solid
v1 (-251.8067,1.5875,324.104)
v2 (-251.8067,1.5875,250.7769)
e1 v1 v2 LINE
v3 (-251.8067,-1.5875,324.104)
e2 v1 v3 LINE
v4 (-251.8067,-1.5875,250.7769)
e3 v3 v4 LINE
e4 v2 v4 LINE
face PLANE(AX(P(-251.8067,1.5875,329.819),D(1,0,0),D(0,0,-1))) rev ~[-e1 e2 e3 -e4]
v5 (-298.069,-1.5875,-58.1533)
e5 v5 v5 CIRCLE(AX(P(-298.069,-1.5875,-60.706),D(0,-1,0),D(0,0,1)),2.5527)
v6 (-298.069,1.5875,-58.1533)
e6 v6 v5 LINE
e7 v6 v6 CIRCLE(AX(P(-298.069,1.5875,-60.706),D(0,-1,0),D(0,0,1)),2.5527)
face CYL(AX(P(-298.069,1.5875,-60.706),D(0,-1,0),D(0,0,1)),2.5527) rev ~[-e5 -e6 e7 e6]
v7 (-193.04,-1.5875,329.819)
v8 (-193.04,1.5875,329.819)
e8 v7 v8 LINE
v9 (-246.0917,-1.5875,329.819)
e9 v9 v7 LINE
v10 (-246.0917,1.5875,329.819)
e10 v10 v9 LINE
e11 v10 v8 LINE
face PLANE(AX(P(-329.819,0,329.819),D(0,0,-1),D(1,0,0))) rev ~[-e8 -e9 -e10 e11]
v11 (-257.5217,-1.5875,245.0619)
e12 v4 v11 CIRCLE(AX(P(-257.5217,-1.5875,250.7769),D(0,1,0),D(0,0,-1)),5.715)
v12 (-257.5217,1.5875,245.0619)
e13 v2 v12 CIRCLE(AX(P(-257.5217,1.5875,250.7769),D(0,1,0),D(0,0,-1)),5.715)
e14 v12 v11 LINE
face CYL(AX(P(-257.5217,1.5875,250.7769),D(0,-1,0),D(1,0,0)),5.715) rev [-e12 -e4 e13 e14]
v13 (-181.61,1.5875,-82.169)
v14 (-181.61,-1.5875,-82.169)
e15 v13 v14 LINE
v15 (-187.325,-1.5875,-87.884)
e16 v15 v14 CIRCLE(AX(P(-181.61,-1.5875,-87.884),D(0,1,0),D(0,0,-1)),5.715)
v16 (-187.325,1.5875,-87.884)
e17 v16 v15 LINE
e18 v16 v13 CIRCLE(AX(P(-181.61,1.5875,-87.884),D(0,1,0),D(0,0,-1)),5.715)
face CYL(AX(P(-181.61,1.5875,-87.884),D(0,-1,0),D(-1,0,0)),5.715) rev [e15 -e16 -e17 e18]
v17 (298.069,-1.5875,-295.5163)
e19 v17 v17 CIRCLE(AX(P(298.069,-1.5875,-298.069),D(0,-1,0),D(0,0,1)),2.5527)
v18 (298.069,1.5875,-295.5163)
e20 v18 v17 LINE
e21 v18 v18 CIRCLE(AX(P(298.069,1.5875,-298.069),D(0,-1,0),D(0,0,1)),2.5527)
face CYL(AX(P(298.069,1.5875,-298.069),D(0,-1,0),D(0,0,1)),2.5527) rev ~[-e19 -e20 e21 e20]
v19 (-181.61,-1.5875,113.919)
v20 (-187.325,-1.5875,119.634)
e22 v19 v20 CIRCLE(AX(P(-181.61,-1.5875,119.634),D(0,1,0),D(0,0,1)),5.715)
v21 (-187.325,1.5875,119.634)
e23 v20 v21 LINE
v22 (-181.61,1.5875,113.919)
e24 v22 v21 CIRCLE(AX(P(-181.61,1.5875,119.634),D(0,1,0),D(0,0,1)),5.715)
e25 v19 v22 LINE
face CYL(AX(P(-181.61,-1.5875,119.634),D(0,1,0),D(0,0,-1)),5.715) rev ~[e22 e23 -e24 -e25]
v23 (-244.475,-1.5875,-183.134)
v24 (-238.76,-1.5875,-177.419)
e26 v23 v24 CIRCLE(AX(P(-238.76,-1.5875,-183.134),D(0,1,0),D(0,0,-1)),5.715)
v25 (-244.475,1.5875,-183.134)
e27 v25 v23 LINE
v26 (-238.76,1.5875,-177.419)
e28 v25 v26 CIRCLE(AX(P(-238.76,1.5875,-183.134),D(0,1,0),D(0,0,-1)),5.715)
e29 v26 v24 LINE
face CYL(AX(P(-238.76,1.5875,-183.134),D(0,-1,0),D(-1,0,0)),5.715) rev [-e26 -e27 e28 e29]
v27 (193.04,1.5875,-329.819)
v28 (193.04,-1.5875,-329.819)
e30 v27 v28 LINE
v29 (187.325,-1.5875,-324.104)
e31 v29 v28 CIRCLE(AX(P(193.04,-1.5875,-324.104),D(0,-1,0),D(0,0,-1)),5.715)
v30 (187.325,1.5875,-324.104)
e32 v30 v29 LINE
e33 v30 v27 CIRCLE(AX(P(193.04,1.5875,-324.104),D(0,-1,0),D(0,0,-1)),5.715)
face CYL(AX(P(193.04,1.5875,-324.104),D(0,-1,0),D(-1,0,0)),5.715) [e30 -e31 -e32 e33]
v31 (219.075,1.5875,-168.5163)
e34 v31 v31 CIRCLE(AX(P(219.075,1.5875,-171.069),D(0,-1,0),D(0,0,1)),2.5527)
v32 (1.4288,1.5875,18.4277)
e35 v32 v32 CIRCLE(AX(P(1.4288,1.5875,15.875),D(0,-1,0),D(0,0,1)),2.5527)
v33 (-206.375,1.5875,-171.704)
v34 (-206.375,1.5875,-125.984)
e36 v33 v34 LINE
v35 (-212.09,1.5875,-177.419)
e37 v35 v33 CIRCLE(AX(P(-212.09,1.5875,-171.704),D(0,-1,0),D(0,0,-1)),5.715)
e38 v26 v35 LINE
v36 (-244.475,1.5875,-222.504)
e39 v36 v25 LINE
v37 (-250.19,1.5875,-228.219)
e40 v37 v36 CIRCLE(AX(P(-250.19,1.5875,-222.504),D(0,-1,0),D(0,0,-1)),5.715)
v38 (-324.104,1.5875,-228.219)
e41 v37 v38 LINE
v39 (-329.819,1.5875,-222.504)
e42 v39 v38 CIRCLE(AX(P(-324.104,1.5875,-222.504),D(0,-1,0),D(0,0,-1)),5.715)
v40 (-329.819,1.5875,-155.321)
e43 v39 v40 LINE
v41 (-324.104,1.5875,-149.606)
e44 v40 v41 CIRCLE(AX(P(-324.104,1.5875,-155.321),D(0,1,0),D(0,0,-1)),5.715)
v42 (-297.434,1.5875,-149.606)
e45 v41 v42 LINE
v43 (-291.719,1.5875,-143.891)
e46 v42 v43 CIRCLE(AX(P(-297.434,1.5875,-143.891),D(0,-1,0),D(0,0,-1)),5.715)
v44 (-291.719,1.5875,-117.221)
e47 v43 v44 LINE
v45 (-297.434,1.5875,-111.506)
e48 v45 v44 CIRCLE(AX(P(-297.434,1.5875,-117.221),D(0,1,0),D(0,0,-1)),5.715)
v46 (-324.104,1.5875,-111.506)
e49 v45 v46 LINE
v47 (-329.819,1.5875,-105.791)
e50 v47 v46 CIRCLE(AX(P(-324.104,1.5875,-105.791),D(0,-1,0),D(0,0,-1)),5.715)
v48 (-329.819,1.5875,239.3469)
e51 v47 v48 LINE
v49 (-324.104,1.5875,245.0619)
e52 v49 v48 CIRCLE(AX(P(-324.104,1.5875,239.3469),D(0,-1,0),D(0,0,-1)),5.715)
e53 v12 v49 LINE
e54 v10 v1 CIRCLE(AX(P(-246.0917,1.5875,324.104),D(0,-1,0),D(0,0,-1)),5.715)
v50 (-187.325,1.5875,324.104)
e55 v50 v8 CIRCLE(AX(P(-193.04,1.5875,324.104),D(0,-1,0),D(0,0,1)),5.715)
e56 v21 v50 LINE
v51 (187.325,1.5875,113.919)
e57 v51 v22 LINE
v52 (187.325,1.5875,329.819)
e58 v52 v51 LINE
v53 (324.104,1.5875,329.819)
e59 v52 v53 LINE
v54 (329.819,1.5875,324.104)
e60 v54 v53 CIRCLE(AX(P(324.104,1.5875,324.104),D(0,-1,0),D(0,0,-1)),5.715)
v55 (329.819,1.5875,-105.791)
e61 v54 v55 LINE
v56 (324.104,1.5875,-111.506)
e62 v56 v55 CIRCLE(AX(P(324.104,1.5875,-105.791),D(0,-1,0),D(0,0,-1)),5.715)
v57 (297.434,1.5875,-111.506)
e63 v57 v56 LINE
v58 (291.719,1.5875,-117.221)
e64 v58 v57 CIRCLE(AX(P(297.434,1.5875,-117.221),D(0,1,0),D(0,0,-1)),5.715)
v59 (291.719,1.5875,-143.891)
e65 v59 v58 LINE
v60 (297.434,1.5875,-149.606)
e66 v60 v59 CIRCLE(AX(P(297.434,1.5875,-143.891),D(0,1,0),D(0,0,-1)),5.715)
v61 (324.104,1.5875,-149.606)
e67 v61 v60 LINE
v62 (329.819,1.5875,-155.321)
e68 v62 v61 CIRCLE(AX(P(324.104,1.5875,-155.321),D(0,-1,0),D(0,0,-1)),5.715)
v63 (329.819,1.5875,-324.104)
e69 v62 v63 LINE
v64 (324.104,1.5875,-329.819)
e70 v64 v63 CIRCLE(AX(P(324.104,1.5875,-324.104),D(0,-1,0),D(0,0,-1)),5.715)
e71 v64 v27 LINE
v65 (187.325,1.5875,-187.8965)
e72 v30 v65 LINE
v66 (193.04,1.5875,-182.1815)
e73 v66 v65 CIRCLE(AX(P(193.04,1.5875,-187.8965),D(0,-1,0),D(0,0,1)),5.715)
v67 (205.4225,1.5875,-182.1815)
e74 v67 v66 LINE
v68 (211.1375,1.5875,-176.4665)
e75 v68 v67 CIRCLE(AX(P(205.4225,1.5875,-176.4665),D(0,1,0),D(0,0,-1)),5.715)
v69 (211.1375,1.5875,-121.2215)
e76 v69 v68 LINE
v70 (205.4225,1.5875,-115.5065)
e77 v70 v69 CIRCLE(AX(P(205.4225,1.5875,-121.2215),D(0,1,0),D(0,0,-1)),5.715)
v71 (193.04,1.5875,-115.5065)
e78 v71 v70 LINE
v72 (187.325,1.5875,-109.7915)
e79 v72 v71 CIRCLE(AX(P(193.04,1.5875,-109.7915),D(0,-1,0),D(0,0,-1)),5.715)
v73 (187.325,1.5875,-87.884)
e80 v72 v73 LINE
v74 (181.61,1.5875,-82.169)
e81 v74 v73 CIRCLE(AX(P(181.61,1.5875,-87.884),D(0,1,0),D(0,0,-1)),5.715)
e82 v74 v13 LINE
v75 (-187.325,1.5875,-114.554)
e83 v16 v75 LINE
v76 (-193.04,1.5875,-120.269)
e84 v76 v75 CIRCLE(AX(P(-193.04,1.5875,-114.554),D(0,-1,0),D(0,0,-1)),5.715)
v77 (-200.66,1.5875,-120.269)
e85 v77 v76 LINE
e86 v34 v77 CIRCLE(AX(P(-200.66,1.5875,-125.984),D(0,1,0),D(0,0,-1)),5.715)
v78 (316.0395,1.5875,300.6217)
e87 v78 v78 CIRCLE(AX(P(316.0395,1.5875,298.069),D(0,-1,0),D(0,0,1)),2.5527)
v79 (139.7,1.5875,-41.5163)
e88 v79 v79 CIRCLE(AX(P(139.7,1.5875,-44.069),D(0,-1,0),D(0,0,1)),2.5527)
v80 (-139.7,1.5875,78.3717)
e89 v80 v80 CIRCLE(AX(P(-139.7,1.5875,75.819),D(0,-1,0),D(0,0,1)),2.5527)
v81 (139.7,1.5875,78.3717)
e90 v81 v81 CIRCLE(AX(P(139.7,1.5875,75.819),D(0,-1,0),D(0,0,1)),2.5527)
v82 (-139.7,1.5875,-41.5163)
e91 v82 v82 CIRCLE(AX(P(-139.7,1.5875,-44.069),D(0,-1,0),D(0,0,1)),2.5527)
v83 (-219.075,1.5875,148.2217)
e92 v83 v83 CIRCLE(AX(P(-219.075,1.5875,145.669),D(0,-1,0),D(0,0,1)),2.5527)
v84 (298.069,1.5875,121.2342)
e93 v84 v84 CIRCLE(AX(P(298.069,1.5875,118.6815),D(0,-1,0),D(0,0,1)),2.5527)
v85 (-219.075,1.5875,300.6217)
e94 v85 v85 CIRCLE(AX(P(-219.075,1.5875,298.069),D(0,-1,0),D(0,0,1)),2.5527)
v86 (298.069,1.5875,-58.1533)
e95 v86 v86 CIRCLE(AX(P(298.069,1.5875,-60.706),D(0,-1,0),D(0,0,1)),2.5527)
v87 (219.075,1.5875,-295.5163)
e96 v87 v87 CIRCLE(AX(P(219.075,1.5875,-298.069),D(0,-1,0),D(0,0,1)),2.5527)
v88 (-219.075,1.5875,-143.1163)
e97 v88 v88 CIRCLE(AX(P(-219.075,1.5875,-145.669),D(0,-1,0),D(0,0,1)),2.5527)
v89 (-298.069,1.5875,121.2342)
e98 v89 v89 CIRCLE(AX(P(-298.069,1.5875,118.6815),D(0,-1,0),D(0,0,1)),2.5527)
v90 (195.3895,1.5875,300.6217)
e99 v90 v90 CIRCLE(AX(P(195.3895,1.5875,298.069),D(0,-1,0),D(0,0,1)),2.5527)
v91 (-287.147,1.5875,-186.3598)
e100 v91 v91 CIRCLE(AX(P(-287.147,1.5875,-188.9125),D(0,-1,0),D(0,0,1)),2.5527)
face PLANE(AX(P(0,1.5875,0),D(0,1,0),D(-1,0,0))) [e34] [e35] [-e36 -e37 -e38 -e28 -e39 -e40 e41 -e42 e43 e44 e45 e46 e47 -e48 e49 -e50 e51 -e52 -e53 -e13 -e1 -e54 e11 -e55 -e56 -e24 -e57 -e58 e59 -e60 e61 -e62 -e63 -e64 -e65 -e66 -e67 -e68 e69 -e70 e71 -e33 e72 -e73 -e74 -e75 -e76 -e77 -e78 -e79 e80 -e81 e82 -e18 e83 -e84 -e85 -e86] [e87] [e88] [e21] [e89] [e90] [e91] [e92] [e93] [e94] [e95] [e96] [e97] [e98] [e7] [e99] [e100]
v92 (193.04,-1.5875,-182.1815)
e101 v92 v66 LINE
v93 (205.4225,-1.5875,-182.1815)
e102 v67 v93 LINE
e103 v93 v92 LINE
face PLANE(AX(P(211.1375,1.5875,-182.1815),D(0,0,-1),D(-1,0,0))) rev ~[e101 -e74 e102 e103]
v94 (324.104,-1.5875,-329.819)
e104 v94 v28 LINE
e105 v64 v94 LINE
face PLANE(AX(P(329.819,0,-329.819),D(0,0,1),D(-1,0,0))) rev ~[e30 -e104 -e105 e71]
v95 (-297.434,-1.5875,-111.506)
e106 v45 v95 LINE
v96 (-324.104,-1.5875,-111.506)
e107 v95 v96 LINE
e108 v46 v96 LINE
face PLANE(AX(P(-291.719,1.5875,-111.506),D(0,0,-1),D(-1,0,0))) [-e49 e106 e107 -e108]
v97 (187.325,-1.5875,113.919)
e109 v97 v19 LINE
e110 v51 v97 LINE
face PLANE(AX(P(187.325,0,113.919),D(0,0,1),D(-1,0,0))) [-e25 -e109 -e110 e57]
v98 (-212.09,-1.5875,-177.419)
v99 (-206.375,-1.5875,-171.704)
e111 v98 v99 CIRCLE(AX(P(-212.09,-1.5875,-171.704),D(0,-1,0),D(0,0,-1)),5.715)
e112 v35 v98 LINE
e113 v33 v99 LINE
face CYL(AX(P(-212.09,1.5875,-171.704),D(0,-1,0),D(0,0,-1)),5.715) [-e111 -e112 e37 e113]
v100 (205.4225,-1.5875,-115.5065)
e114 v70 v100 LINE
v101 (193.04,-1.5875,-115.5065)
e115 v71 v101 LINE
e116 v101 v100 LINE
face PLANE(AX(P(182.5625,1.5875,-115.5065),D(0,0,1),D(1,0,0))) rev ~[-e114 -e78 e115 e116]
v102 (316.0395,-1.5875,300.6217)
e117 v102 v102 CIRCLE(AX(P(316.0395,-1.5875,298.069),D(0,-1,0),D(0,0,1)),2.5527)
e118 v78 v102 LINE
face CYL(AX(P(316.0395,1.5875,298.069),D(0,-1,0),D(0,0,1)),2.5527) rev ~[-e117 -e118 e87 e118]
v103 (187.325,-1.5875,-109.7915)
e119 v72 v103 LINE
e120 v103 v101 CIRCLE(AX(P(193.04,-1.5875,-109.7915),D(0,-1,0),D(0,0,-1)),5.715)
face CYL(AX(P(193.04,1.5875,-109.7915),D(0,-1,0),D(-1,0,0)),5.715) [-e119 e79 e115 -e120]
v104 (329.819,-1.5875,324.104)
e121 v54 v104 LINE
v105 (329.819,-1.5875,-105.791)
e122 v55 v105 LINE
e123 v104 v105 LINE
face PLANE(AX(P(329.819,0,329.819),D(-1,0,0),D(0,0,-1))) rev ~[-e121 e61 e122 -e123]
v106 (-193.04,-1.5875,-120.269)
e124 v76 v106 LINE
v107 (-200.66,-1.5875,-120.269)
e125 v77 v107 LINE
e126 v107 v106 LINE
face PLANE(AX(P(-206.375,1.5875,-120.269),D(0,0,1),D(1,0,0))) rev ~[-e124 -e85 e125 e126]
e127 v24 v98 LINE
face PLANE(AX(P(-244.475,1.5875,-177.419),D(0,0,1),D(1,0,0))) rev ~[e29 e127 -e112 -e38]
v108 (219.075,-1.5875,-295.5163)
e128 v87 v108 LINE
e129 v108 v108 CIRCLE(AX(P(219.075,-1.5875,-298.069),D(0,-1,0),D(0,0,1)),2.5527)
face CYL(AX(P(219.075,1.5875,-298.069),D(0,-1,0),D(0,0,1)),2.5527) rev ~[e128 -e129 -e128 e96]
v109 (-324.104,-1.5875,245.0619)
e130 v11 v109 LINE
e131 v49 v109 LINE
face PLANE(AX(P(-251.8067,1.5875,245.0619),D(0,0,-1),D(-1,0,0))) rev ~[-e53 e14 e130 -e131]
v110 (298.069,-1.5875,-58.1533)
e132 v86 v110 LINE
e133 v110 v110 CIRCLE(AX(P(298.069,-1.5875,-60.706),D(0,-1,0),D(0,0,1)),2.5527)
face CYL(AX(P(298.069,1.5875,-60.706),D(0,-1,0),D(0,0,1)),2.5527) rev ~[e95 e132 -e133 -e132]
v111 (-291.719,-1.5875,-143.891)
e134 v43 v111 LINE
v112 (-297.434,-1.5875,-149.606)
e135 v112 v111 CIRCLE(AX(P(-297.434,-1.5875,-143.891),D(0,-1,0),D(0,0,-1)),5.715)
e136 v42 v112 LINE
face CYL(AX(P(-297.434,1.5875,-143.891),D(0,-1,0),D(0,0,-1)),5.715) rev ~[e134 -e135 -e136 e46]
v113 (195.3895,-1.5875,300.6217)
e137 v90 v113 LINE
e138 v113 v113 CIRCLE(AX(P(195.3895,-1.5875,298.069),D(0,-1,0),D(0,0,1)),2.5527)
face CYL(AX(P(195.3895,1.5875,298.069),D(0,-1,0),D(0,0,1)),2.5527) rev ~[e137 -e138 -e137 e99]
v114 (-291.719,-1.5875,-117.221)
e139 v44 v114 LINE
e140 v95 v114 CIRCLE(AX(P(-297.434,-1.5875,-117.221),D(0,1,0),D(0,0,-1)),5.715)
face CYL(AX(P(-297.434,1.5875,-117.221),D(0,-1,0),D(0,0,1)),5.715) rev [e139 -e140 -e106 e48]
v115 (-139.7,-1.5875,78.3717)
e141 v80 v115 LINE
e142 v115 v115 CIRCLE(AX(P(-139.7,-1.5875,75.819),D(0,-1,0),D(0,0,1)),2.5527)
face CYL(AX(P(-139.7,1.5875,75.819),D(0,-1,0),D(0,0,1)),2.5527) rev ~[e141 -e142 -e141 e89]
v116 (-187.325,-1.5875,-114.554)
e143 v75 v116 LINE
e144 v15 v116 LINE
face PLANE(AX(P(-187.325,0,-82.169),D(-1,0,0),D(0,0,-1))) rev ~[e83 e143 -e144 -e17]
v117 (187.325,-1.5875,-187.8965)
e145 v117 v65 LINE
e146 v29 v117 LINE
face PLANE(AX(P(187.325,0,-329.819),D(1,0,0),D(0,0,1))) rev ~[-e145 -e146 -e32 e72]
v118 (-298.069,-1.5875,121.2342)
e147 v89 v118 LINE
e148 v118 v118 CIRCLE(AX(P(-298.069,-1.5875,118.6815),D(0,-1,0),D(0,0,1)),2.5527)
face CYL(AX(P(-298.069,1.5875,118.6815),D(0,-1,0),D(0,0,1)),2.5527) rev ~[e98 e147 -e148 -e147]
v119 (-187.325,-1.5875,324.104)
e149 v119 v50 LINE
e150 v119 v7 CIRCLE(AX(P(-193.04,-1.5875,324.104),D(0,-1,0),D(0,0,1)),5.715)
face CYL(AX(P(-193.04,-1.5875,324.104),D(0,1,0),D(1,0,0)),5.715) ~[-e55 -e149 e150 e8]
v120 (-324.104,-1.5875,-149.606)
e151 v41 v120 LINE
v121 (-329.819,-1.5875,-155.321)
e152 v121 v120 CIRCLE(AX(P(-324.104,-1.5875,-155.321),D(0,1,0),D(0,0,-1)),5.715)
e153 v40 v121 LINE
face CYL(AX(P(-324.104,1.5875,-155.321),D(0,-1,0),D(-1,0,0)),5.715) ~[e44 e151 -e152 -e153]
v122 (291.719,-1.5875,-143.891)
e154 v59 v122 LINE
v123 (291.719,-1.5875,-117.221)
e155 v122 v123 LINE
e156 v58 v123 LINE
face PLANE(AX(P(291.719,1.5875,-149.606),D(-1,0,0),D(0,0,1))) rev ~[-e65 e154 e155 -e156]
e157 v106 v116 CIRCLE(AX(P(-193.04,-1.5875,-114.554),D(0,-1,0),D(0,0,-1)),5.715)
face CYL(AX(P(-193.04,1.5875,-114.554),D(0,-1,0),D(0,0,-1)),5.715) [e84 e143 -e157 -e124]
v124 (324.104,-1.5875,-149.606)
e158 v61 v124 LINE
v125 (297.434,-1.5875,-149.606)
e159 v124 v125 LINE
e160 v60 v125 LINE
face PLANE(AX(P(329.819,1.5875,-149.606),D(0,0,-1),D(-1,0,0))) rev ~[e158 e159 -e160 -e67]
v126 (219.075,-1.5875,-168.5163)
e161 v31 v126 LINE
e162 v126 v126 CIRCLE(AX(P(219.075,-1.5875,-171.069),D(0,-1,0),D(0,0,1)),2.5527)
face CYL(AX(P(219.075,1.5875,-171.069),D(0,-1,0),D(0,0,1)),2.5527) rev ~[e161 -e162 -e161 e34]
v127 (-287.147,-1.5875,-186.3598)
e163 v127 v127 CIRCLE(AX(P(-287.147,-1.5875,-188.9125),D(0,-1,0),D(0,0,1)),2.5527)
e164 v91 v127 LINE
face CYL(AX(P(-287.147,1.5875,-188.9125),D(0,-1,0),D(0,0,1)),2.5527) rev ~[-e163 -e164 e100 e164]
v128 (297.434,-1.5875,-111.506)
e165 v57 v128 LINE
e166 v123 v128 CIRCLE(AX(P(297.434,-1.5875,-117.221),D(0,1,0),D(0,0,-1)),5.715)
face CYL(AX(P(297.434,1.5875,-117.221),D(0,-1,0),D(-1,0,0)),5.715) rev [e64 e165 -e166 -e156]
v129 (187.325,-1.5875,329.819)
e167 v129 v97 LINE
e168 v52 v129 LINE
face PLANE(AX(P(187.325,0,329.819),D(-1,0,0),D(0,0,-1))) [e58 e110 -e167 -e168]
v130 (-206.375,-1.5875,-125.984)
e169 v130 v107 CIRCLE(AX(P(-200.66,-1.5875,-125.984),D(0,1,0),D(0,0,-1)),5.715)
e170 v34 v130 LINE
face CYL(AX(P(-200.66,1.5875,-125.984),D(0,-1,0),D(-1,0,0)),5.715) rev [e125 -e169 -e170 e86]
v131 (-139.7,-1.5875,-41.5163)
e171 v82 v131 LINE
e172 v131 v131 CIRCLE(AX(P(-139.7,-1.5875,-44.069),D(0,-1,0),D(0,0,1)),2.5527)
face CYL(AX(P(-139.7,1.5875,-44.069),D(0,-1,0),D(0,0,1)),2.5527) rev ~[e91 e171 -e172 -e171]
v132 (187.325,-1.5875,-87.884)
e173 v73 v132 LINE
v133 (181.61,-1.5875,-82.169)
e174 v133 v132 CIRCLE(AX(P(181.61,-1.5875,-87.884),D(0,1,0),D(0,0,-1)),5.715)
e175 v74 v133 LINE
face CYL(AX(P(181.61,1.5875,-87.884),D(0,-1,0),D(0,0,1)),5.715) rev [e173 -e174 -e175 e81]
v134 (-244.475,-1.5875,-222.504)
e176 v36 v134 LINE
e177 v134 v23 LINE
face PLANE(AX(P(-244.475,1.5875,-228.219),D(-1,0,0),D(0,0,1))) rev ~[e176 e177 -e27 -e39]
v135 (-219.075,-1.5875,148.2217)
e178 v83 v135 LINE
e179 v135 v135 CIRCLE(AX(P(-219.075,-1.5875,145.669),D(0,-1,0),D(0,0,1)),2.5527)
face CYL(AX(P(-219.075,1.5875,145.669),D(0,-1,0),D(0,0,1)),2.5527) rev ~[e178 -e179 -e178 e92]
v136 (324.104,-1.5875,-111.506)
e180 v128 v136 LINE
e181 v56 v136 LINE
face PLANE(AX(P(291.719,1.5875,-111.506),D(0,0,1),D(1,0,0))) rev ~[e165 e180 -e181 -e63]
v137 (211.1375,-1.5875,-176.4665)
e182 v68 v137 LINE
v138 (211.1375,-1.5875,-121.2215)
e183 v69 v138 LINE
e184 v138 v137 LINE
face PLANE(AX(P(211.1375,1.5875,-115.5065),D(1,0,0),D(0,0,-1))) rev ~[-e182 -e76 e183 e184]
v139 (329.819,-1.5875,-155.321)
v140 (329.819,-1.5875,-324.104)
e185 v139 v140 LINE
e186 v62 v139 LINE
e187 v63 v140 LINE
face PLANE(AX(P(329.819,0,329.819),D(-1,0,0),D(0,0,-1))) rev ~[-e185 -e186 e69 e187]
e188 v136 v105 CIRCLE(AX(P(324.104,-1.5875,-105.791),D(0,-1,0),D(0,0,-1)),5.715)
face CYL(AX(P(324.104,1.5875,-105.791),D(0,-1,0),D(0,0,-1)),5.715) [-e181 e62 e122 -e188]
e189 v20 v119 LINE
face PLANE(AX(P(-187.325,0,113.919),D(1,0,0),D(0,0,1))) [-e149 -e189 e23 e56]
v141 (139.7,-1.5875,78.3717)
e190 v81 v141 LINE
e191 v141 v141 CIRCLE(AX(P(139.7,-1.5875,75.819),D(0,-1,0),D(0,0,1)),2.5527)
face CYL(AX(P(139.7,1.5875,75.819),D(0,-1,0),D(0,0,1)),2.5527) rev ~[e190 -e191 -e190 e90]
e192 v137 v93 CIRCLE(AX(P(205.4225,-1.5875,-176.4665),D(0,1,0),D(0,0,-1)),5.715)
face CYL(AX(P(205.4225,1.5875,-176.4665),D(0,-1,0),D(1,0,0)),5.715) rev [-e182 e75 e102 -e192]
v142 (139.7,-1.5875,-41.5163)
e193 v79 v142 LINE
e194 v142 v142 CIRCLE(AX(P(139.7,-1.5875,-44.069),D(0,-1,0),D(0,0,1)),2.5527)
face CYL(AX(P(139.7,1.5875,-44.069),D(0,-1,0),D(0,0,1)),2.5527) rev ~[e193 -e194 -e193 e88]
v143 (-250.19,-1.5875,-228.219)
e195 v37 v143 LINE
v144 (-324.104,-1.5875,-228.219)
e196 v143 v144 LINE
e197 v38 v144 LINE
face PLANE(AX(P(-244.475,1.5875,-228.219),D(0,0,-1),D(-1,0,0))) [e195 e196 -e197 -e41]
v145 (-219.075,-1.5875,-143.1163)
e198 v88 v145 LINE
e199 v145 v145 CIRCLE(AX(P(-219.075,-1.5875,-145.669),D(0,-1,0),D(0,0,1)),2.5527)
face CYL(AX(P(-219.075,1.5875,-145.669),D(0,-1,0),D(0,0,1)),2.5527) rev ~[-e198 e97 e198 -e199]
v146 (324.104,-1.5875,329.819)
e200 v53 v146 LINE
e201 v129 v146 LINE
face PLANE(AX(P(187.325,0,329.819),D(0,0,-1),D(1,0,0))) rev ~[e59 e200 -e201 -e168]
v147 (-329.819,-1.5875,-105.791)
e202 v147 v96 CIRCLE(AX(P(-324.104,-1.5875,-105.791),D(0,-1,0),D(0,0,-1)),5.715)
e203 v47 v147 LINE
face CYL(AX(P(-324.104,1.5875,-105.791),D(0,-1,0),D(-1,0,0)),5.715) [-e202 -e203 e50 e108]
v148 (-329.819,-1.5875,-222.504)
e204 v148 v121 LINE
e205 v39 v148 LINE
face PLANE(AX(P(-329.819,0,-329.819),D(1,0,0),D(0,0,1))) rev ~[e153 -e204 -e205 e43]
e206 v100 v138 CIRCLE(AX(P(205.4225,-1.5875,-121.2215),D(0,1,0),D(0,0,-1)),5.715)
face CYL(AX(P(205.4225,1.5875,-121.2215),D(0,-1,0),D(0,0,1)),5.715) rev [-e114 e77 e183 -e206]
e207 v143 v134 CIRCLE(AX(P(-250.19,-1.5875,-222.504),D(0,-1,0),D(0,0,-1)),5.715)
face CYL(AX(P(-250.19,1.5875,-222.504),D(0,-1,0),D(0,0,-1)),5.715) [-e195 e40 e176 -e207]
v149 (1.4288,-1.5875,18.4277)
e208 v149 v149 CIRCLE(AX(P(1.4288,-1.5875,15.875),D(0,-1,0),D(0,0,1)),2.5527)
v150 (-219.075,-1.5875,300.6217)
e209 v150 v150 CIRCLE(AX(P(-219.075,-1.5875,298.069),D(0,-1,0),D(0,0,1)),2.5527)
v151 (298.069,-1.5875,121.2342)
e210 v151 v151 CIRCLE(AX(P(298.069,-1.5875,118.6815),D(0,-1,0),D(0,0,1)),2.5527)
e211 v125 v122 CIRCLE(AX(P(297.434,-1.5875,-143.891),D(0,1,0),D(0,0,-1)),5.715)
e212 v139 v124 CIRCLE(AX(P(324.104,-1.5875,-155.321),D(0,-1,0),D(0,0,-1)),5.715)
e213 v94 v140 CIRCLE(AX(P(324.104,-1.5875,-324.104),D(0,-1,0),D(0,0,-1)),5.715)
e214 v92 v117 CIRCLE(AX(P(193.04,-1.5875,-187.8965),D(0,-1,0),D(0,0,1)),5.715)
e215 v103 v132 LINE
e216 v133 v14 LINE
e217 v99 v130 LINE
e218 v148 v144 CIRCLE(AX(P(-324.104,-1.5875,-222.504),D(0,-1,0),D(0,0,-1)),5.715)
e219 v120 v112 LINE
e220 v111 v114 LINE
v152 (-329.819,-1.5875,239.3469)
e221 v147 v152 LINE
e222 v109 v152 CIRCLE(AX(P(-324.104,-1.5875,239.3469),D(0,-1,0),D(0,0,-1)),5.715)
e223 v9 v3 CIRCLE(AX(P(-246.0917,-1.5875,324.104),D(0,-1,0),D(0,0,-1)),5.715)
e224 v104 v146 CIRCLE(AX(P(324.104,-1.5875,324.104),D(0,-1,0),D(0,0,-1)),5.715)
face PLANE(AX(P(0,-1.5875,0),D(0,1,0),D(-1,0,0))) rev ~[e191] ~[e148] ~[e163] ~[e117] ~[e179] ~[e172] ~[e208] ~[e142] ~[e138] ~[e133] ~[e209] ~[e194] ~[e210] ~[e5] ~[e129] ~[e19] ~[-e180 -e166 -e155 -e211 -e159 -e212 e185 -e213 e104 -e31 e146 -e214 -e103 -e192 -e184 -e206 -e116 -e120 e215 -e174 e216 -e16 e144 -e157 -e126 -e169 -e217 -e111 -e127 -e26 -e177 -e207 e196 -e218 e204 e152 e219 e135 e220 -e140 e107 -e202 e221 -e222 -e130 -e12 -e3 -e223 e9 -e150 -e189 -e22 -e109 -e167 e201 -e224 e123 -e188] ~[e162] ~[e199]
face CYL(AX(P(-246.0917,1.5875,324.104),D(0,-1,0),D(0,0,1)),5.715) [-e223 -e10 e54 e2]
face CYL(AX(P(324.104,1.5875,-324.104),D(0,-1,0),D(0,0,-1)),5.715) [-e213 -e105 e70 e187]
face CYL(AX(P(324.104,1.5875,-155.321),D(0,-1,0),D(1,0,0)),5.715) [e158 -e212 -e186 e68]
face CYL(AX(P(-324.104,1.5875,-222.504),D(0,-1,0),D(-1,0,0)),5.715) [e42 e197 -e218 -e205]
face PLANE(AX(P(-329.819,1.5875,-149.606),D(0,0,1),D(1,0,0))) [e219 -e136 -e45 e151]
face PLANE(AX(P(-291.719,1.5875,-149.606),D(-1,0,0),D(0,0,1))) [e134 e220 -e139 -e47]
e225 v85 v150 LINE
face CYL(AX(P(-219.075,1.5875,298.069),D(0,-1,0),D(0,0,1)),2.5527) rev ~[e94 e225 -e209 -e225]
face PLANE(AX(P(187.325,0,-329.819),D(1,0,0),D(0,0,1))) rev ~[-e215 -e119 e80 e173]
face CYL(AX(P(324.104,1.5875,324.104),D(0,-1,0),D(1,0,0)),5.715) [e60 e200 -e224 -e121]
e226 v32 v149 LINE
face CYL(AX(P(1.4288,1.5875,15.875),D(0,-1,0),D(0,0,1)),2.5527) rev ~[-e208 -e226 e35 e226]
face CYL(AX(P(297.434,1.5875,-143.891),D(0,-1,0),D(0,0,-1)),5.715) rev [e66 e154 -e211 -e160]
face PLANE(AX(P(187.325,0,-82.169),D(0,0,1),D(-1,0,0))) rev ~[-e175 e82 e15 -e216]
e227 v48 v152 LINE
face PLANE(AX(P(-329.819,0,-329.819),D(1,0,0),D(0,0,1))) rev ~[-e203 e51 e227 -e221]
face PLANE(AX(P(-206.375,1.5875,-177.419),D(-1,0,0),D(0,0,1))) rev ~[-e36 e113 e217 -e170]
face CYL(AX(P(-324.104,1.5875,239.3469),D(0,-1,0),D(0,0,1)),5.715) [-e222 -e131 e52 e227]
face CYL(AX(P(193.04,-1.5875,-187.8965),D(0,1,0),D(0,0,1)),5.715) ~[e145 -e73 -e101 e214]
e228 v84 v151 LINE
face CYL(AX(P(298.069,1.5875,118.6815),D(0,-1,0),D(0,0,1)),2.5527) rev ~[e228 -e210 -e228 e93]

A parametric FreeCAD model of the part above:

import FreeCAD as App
import Part
import Sketcher
from FreeCAD import Vector
Q = App.Units.Quantity


def edges_at(feature, points):
    """Names of the edges that pass closest to the given points."""
    edges = feature.Shape.Edges
    near = lambda p: min(range(len(edges)), key=lambda i: edges[i].distToShape(Part.Vertex(*p))[0])
    return sorted({f"Edge{near(p) + 1}" for p in points})


def add_polygon(sketch, points):
    """Adds a closed chain of lines whose ends are joined by coincident constraints."""
    first, n = sketch.GeometryCount, len(points)
    for a, b in zip(points, points[1:] + points[:1]):
        sketch.addGeometry(Part.LineSegment(App.Vector(*a, 0), App.Vector(*b, 0)), False)
    for i in range(n):
        sketch.addConstraint(Sketcher.Constraint("Coincident", first + i, 2, first + (i + 1) % n, 1))

doc = App.newDocument("Part")
body = doc.addObject("PartDesign::Body", "Body")

# Sketch on XZ plane
sketch1 = doc.addObject("Sketcher::SketchObject", "Sketch")
body.addObject(sketch1)
sketch1.AttachmentSupport = (doc.XZ_Plane, [""])
sketch1.MapMode = "FlatFace"
add_polygon(sketch1, [(-330, -330), (-330, 330), (-187, 330), (-187, 114), (187, 114), (187, 330), (330, 330), (330, -330), (187, -330), (187, -82), (-187, -82), (-187, -330)])  # lines 0-11
sketch1.addConstraint([
    Sketcher.Constraint("Vertical", 0),
    Sketcher.Constraint("Horizontal", 1),
    Sketcher.Constraint("Vertical", 2),
    Sketcher.Constraint("Horizontal", 3),
    Sketcher.Constraint("Vertical", 4),
    Sketcher.Constraint("Horizontal", 5),
    Sketcher.Constraint("Vertical", 6),
    Sketcher.Constraint("Horizontal", 7),
    Sketcher.Constraint("Vertical", 8),
    Sketcher.Constraint("Horizontal", 9),
    Sketcher.Constraint("Vertical", 10),
    Sketcher.Constraint("Horizontal", 11),
    Sketcher.Constraint("Symmetric", 0, 2, 6, 2, -1, 1),
    Sketcher.Constraint("Symmetric", 4, 2, 10, 2, -1, 1),
    Sketcher.Constraint("Symmetric", 1, 2, 4, 2, -2),
    Sketcher.Constraint("Vertical", 4, 2, 7, 2),
    Sketcher.Constraint("DistanceY", 2, 2, 2, 1, Q("8.5 in")),
    Sketcher.Constraint("DistanceX", 3, 1, 3, 2, Q("14.75 in")),
    Sketcher.Constraint("DistanceY", 0, 1, 0, 2, Q("25.97 in")),
    Sketcher.Constraint("DistanceY", 8, 1, 8, 2, Q("9.75 in")),
    Sketcher.Constraint("DistanceX", 0, 2, 5, 2, Q("25.97 in")),
])
pad1 = doc.addObject("PartDesign::Pad", "Pad")
body.addObject(pad1)
pad1.Profile = sketch1
pad1.Length = Q("0.125 in")
pad1.Midplane = True

# Sketch on XZ plane
sketch2 = doc.addObject("Sketcher::SketchObject", "Sketch001")
body.addObject(sketch2)
sketch2.AttachmentSupport = (doc.XZ_Plane, [""])
sketch2.MapMode = "FlatFace"
sketch2.AttachmentOffset = App.Placement(Vector(0, 0, -0.0625 * 25.4), App.Rotation())
add_polygon(sketch2, [(-187, -330), (-330, -330), (-330, -228), (-244, -228), (-244, -177), (-187, -177)])  # lines 0-5
add_polygon(sketch2, [(-292, -150), (-330, -150), (-330, -112), (-292, -112)])  # lines 6-9
add_polygon(sketch2, [(330, -112), (330, -150), (292, -150), (292, -112)])  # lines 10-13
sketch2.addConstraint([
    Sketcher.Constraint("Horizontal", 0),
    Sketcher.Constraint("Vertical", 1),
    Sketcher.Constraint("Horizontal", 2),
    Sketcher.Constraint("Vertical", 3),
    Sketcher.Constraint("Horizontal", 4),
    Sketcher.Constraint("Vertical", 5),
    Sketcher.Constraint("Horizontal", 6),
    Sketcher.Constraint("Vertical", 7),
    Sketcher.Constraint("Horizontal", 8),
    Sketcher.Constraint("Vertical", 9),
    Sketcher.Constraint("Vertical", 10),
    Sketcher.Constraint("Horizontal", 11),
    Sketcher.Constraint("Vertical", 12),
    Sketcher.Constraint("Horizontal", 13),
    Sketcher.Constraint("Symmetric", 6, 2, 10, 2, -2),
    Sketcher.Constraint("Symmetric", 8, 2, 12, 2, -2),
    Sketcher.Constraint("Vertical", 1, 2, 6, 2),
    Sketcher.Constraint("Equal", 13, 7),
    Sketcher.Constraint("DistanceY", 1, 1, 1, 2, Q("4 in")),
    Sketcher.Constraint("DistanceY", 3, 1, 3, 2, Q("2 in")),
    Sketcher.Constraint("DistanceX", 6, 2, 6, 1, Q("1.5 in")),
    Sketcher.Constraint("DistanceX", 4, 1, 4, 2, Q("2.25 in")),
    Sketcher.Constraint("DistanceX", 0, 2, 0, 1, Q("5.61 in")),
    Sketcher.Constraint("DistanceY", 6, 2, -1, 1, Q("5.89 in")),
    Sketcher.Constraint("DistanceX", 4, 2, 10, 2, Q("20.36 in")),
    Sketcher.Constraint("DistanceY", 0, 2, -1, 1, Q("12.985 in")),
])
pocket1 = doc.addObject("PartDesign::Pocket", "Pocket")
body.addObject(pocket1)
pocket1.Profile = sketch2
pocket1.Type = "ThroughAll"
pocket1.Reversed = True
doc.recompute()

fillet = doc.addObject("PartDesign::Fillet", "Fillet")
body.addObject(fillet)
fillet.Base = (pocket1, edges_at(pocket1, [
    (-187.325, 0, 113.919),
    (329.819, 0, 329.819),
    (329.819, 0, -329.819),
    (187.325, 0, -329.819),
    (187.325, 0, -82.169),
    (-187.325, 0, -82.169),
    (-329.819, 0, 329.819),
    (-329.819, 0, -228.219),
    (-329.819, 0, -149.606),
    (-291.719, 0, -149.606),
    (-291.719, 0, -111.506),
    (-329.819, 0, -111.506),
    (291.719, 0, -149.606),
    (291.719, 0, -111.506),
    (329.819, 0, -111.506),
    (329.819, 0, -149.606),
    (-187.325, 0, -177.419),
    (-244.475, 0, -177.419),
    (-244.475, 0, -228.219),
    (-187.325, 0, 329.819),
]))
fillet.Radius = Q("0.225 in")

# Sketch on XZ plane
sketch3 = doc.addObject("Sketcher::SketchObject", "Sketch002")
body.addObject(sketch3)
sketch3.AttachmentSupport = (doc.XZ_Plane, [""])
sketch3.MapMode = "FlatFace"
sketch3.AttachmentOffset = App.Placement(Vector(0, 0, -0.0625 * 25.4), App.Rotation())
sketch3.addGeometry([
    Part.Circle(Vector(-298.1, 298.1, 0), Vector(0, 0, 1), 2.6),  # 0
    Part.Circle(Vector(316, 298.1, 0), Vector(0, 0, 1), 2.6),  # 1
    Part.Circle(Vector(139.7, -44.1, 0), Vector(0, 0, 1), 2.6),  # 2
    Part.Circle(Vector(139.7, 75.8, 0), Vector(0, 0, 1), 2.6),  # 3
    Part.Circle(Vector(-139.7, -44.1, 0), Vector(0, 0, 1), 2.6),  # 4
    Part.Circle(Vector(-139.7, 75.8, 0), Vector(0, 0, 1), 2.6),  # 5
    Part.Circle(Vector(1.4, 15.9, 0), Vector(0, 0, 1), 2.6),  # 6
    Part.Circle(Vector(-298.1, -60.7, 0), Vector(0, 0, 1), 2.6),  # 7
    Part.Circle(Vector(298.1, -60.7, 0), Vector(0, 0, 1), 2.6),  # 8
    Part.Circle(Vector(298.1, -298.1, 0), Vector(0, 0, 1), 2.6),  # 9
    Part.Circle(Vector(219.1, -298.1, 0), Vector(0, 0, 1), 2.6),  # 10
    Part.Circle(Vector(-219.1, 145.7, 0), Vector(0, 0, 1), 2.6),  # 11
    Part.Circle(Vector(195.4, 298.1, 0), Vector(0, 0, 1), 2.6),  # 12
    Part.Circle(Vector(298.1, 118.7, 0), Vector(0, 0, 1), 2.6),  # 13
    Part.Circle(Vector(-298.1, 118.7, 0), Vector(0, 0, 1), 2.6),  # 14
    Part.Circle(Vector(-287.1, -188.9, 0), Vector(0, 0, 1), 2.6),  # 15
    Part.Circle(Vector(-219.1, 298.1, 0), Vector(0, 0, 1), 2.6),  # 16
    Part.Circle(Vector(-219.1, -145.7, 0), Vector(0, 0, 1), 2.6),  # 17
    Part.Circle(Vector(219.1, -171.1, 0), Vector(0, 0, 1), 2.6),  # 18
], False)
sketch3.addConstraint([
    Sketcher.Constraint("Equal", 0, 1),
    Sketcher.Constraint("Equal", 1, 2),
    Sketcher.Constraint("Equal", 2, 3),
    Sketcher.Constraint("Equal", 3, 4),
    Sketcher.Constraint("Equal", 4, 5),
    Sketcher.Constraint("Equal", 5, 6),
    Sketcher.Constraint("Equal", 6, 7),
    Sketcher.Constraint("Equal", 7, 8),
    Sketcher.Constraint("Equal", 8, 9),
    Sketcher.Constraint("Equal", 9, 10),
    Sketcher.Constraint("Equal", 10, 11),
    Sketcher.Constraint("Equal", 11, 12),
    Sketcher.Constraint("Equal", 12, 13),
    Sketcher.Constraint("Equal", 13, 14),
    Sketcher.Constraint("Equal", 14, 15),
    Sketcher.Constraint("Equal", 15, 16),
    Sketcher.Constraint("Equal", 16, 17),
    Sketcher.Constraint("Equal", 17, 18),
    Sketcher.Constraint("Symmetric", 0, 3, 9, 3, -1, 1),
    Sketcher.Constraint("Symmetric", 10, 3, 16, 3, -1, 1),
    Sketcher.Constraint("Symmetric", 2, 3, 4, 3, -2),
    Sketcher.Constraint("Symmetric", 3, 3, 5, 3, -2),
    Sketcher.Constraint("Symmetric", 7, 3, 8, 3, -2),
    Sketcher.Constraint("Symmetric", 13, 3, 14, 3, -2),
    Sketcher.Constraint("Symmetric", 11, 3, 17, 3, -1),
    Sketcher.Constraint("Horizontal", 0, 3, 1, 3),
    Sketcher.Constraint("Horizontal", 9, 3, 10, 3),
    Sketcher.Constraint("Horizontal", 1, 3, 12, 3),
    Sketcher.Constraint("Vertical", 2, 3, 3, 3),
    Sketcher.Constraint("Vertical", 0, 3, 7, 3),
    Sketcher.Constraint("Vertical", 9, 3, 13, 3),
    Sketcher.Constraint("Vertical", 11, 3, 16, 3),
    Sketcher.Constraint("Vertical", 10, 3, 18, 3),
    Sketcher.Constraint("Diameter", 0, Q("0.201 in")),
    Sketcher.Constraint("DistanceX", 4, 3, 2, 3, Q("11 in")),
    Sketcher.Constraint("DistanceY", 9, 3, 2, 3, Q("10 in")),
    Sketcher.Constraint("DistanceY", 11, 3, 0, 3, Q("6 in")),
    Sketcher.Constraint("DistanceY", 10, 3, 18, 3, Q("5 in")),
    Sketcher.Constraint("DistanceY", 7, 3, -1, 1, Q("2.39 in")),
    Sketcher.Constraint("DistanceY", 2, 3, 1, 3, Q("13.47 in")),
    Sketcher.Constraint("DistanceY", 2, 3, 3, 3, Q("4.72 in")),
    Sketcher.Constraint("DistanceY", 2, 3, 6, 3, Q("2.36 in")),
    Sketcher.Constraint("DistanceX", 10, 3, 9, 3, Q("3.11 in")),
    Sketcher.Constraint("DistanceX", 12, 3, 1, 3, Q("4.75 in")),
    Sketcher.Constraint("DistanceX", 7, 3, 15, 3, Q("0.43 in")),
    Sketcher.Constraint("DistanceY", 15, 3, 14, 3, Q("12.11 in")),
    Sketcher.Constraint("DistanceX", 0, 3, -1, 1, Q("11.735 in")),
    Sketcher.Constraint("DistanceY", 15, 3, -1, 1, Q("7.4375 in")),
    Sketcher.Constraint("DistanceX", -1, 1, 1, 3, Q("12.4425 in")),
    Sketcher.Constraint("DistanceX", -1, 1, 6, 3, 1.4288),
])
doc.recompute()
hole = doc.addObject("PartDesign::Hole", "Hole")
body.addObject(hole)
hole.Profile = sketch3
hole.ThreadType = "None"
hole.Diameter = Q("0.201 in")
hole.DepthType = "ThroughAll"
hole.Reversed = True

# Sketch on XZ plane
sketch4 = doc.addObject("Sketcher::SketchObject", "Sketch003")
body.addObject(sketch4)
sketch4.AttachmentSupport = (doc.XZ_Plane, [""])
sketch4.MapMode = "FlatFace"
sketch4.AttachmentOffset = App.Placement(Vector(0, 0, -0.0625 * 25.4), App.Rotation())
add_polygon(sketch4, [(-252, 330), (-252, 245), (-330, 245), (-330, 330)])  # lines 0-3
add_polygon(sketch4, [(-187, -120), (-187, -177), (-206, -177), (-206, -120)])  # lines 4-7
add_polygon(sketch4, [(211, -116), (211, -182), (183, -182), (183, -116)])  # lines 8-11
sketch4.addConstraint([
    Sketcher.Constraint("Vertical", 0),
    Sketcher.Constraint("Horizontal", 1),
    Sketcher.Constraint("Vertical", 2),
    Sketcher.Constraint("Horizontal", 3),
    Sketcher.Constraint("Vertical", 4),
    Sketcher.Constraint("Horizontal", 5),
    Sketcher.Constraint("Vertical", 6),
    Sketcher.Constraint("Horizontal", 7),
    Sketcher.Constraint("Vertical", 8),
    Sketcher.Constraint("Horizontal", 9),
    Sketcher.Constraint("Vertical", 10),
    Sketcher.Constraint("Horizontal", 11),
    Sketcher.Constraint("DistanceX", 5, 2, 5, 1, Q("0.75 in")),
    Sketcher.Constraint("DistanceY", 4, 2, 4, 1, Q("2.25 in")),
    Sketcher.Constraint("DistanceY", 8, 2, 4, 2, Q("0.1875 in")),
    Sketcher.Constraint("DistanceY", 7, 2, 10, 2, Q("0.1875 in")),
    Sketcher.Constraint("DistanceX", 9, 2, 9, 1, Q("1.125 in")),
    Sketcher.Constraint("DistanceX", 1, 2, 4, 2, Q("5.61 in")),
    Sketcher.Constraint("DistanceY", 4, 2, 3, 2, Q("19.97 in")),
    Sketcher.Constraint("DistanceY", 0, 2, 0, 1, Q("3.3369 in")),
    Sketcher.Constraint("DistanceX", 1, 2, -1, 1, Q("12.985 in")),
    Sketcher.Constraint("DistanceY", -1, 1, 2, 2, Q("12.985 in")),
    Sketcher.Constraint("DistanceX", -1, 1, 8, 2, Q("8.3125 in")),
    Sketcher.Constraint("DistanceX", 1, 2, 1, 1, 78.0123),
])
pocket2 = doc.addObject("PartDesign::Pocket", "Pocket001")
body.addObject(pocket2)
pocket2.Profile = sketch4
pocket2.Type = "ThroughAll"
pocket2.Reversed = True
doc.recompute()

fillet2 = doc.addObject("PartDesign::Fillet", "Fillet001")
body.addObject(fillet2)
fillet2.Base = (pocket2, edges_at(pocket2, [
    (-329.819, 0, 245.062),
    (-251.807, 0, 245.062),
    (-251.807, 0, 329.819),
    (-187.325, 0, -120.269),
    (-206.375, 0, -120.269),
    (-206.375, 0, -177.419),
    (187.325, 0, -115.507),
    (211.137, 0, -115.507),
    (211.137, 0, -182.181),
    (187.325, 0, -182.181),
]))
fillet2.Radius = Q("0.225 in")

doc.recompute()
